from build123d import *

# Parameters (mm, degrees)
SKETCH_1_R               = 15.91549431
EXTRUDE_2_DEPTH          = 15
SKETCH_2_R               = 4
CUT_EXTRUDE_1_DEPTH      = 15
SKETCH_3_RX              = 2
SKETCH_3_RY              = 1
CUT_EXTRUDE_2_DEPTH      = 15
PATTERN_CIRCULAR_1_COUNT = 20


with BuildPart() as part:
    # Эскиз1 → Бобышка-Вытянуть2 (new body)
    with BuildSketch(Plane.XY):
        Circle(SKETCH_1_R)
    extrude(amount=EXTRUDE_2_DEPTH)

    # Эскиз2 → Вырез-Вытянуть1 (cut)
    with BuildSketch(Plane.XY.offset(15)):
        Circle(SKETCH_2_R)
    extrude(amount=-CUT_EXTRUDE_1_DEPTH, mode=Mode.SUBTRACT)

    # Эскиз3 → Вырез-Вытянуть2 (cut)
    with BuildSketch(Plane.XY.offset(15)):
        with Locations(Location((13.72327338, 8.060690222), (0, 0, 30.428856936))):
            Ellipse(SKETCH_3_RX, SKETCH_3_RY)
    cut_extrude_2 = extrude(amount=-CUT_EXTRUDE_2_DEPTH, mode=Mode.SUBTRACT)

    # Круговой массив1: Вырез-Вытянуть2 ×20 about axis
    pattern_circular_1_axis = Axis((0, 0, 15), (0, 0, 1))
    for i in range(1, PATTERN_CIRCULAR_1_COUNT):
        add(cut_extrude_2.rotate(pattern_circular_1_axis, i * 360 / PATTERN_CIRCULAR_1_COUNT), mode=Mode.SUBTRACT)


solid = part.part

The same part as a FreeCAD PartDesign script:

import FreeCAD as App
import Part
import Sketcher

V = App.Vector
Q = App.Units.Quantity

doc = App.newDocument("Part")
body = doc.addObject("PartDesign::Body", "Body")

# Sketch on XY plane
sketch1 = body.newObject("Sketcher::SketchObject", "Sketch")
sketch1.AttachmentSupport = (doc.getObject("XY_Plane"), [""])
sketch1.MapMode = "FlatFace"
sketch1.addGeometry(Part.Circle(V(0, 0, 0), V(0, 0, 1), 15.915494), False)
sketch1.addConstraint([
    Sketcher.Constraint("Coincident", 0, 3, -1, 1),
    Sketcher.Constraint("Diameter", 0, Q("31.830989 mm")),
])
pad1 = body.newObject("PartDesign::Pad", "Pad")
pad1.Profile = sketch1
pad1.Length = 15

# Sketch on XY plane
sketch2 = body.newObject("Sketcher::SketchObject", "Sketch001")
sketch2.AttachmentSupport = (doc.getObject("XY_Plane"), [""])
sketch2.MapMode = "FlatFace"
sketch2.AttachmentOffset = App.Placement(V(0, 0, 15), App.Rotation())
sketch2.addGeometry(Part.Circle(V(0, 0, 0), V(0, 0, 1), 4), False)
sketch2.addConstraint([
    Sketcher.Constraint("Coincident", 0, 3, -1, 1),
    Sketcher.Constraint("Diameter", 0, Q("8 mm")),
])
pocket1 = body.newObject("PartDesign::Pocket", "Pocket")
pocket1.Profile = sketch2
pocket1.Length = 15

# Sketch on XY plane
sketch3 = body.newObject("Sketcher::SketchObject", "Sketch002")
sketch3.AttachmentSupport = (doc.getObject("XY_Plane"), [""])
sketch3.MapMode = "FlatFace"
sketch3.AttachmentOffset = App.Placement(V(0, 0, 15), App.Rotation())
sketch3.addGeometry(Part.Ellipse(V(15.447791, 9.073626, 0), V(13.216805, 8.922949, 0), V(13.723273, 8.06069, 0)), False)
sketch3.addConstraint(Sketcher.Constraint("Block", 0))
pocket2 = body.newObject("PartDesign::Pocket", "Pocket001")
pocket2.Profile = sketch3
pocket2.Length = 15
doc.recompute()

polarpattern = body.newObject("PartDesign::PolarPattern", "PolarPattern")
polarpattern.Originals = [pocket2]
polarpattern.Axis = (doc.getObject("Z_Axis"), [""])
polarpattern.Angle = 360
polarpattern.Occurrences = 20
body.Tip = polarpattern

doc.recompute()
